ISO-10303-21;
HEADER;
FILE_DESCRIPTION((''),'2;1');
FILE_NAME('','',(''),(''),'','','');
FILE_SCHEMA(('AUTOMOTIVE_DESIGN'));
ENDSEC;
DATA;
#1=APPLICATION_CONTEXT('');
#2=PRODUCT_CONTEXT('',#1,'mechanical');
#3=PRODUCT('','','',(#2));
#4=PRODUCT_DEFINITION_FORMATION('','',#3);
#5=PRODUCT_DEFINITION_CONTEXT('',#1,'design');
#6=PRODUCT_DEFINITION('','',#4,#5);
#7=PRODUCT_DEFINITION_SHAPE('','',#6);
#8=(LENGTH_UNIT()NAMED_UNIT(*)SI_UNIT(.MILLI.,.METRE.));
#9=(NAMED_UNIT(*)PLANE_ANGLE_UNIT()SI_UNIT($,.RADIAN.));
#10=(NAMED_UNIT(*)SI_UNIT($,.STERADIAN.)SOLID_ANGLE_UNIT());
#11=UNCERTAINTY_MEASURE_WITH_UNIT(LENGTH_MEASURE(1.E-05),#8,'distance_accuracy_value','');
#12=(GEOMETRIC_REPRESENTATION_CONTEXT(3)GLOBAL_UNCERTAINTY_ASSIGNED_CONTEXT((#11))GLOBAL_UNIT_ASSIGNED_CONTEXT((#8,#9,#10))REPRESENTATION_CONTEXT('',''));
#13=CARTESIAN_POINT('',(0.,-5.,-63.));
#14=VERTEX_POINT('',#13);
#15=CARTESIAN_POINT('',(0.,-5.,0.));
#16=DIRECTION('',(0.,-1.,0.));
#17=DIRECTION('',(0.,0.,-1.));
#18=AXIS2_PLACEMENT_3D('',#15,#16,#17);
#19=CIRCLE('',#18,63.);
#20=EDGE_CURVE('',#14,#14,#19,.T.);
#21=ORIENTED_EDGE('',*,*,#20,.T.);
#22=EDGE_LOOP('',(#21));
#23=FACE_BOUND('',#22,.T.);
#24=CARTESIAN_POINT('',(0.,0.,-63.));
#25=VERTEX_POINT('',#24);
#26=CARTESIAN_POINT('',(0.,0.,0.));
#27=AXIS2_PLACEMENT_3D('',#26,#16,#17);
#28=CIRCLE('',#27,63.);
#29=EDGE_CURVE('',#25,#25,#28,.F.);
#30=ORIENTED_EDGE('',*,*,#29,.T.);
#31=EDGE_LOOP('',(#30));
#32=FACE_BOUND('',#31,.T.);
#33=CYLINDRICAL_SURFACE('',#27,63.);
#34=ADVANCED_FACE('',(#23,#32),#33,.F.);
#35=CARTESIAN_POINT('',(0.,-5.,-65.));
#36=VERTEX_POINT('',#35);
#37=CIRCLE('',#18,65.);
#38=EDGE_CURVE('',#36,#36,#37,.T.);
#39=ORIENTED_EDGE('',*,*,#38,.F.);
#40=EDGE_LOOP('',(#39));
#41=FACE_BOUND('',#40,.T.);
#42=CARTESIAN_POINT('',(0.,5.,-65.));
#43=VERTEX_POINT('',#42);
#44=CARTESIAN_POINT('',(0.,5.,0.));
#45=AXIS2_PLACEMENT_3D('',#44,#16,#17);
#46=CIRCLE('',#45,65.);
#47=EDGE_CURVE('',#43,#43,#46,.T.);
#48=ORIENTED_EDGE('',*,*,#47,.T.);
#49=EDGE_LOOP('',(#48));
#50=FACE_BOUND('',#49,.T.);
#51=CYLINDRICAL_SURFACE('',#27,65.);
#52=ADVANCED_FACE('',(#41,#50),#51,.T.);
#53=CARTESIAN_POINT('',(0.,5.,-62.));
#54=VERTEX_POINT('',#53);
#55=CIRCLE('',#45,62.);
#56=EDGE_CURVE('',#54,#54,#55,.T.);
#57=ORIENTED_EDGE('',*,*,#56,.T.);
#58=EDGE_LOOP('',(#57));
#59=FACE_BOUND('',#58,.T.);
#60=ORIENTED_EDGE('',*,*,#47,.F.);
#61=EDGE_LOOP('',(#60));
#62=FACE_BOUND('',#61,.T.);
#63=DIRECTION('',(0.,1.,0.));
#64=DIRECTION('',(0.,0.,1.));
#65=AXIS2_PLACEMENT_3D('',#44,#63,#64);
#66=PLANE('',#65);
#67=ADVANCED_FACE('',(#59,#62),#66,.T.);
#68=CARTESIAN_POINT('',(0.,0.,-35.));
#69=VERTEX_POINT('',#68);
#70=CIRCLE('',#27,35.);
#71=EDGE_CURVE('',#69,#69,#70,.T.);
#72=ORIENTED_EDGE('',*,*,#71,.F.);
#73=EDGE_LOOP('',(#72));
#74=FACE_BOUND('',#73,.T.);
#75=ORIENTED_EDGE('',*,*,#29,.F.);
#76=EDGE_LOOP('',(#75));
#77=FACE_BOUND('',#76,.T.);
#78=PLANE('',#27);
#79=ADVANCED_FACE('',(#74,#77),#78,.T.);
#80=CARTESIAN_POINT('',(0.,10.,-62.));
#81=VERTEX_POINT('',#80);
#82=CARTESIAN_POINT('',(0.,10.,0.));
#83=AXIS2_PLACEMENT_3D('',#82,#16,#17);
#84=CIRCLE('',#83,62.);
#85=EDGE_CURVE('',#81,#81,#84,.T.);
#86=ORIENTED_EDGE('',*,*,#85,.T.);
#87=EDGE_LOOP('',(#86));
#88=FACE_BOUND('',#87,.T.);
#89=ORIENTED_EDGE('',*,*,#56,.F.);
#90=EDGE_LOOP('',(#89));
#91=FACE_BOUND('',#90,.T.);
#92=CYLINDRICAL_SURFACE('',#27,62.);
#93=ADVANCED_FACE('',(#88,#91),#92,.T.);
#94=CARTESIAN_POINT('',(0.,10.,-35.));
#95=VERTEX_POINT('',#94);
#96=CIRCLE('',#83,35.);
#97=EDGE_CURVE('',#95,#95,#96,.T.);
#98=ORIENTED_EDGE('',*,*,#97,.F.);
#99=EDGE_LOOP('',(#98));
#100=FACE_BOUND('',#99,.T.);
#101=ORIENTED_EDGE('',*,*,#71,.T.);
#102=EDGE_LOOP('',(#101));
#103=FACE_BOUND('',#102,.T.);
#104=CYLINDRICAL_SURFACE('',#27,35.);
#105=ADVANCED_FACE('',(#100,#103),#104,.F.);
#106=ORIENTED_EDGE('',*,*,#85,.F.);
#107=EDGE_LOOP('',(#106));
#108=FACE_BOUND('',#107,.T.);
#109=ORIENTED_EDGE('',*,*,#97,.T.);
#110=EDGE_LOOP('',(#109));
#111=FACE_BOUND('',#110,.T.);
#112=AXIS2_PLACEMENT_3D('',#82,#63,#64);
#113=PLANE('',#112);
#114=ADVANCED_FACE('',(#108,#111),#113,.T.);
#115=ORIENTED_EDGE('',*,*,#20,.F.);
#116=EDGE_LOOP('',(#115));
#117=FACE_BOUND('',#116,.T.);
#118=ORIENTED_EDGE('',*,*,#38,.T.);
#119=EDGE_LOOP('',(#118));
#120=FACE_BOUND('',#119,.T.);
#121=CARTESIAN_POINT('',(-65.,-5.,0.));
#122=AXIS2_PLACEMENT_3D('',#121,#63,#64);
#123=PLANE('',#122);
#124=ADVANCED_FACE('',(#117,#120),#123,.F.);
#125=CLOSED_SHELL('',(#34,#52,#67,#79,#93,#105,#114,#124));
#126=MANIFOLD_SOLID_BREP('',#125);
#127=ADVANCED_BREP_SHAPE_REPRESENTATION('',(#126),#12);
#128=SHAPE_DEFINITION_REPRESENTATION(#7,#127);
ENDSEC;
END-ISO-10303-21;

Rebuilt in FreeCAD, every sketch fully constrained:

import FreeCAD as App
import Part
import Sketcher
from FreeCAD import Vector

doc = App.newDocument("Part")
body = doc.addObject("PartDesign::Body", "Body")

sketch1 = body.newObject("Sketcher::SketchObject", "Sketch")
sketch1.AttachmentSupport = (doc.getObject("XY_Plane"), [""])
sketch1.MapMode = "FlatFace"
sketch1.addGeometry([
    Part.LineSegment(Vector(-35, 0, 0), Vector(-35, 10, 0)),
    Part.LineSegment(Vector(-35, 10, 0), Vector(-62, 10, 0)),
    Part.LineSegment(Vector(-62, 10, 0), Vector(-62, 5, 0)),
    Part.LineSegment(Vector(-62, 5, 0), Vector(-65, 5, 0)),
    Part.LineSegment(Vector(-65, 5, 0), Vector(-65, -5, 0)),
    Part.LineSegment(Vector(-65, -5, 0), Vector(-63, -5, 0)),
    Part.LineSegment(Vector(-63, -5, 0), Vector(-63, 0, 0)),
    Part.LineSegment(Vector(-63, 0, 0), Vector(-35, 0, 0)),
], False)
sketch1.addConstraint([
    Sketcher.Constraint("Coincident", 0, 2, 1, 1),
    Sketcher.Constraint("Coincident", 1, 2, 2, 1),
    Sketcher.Constraint("Coincident", 2, 2, 3, 1),
    Sketcher.Constraint("Coincident", 3, 2, 4, 1),
    Sketcher.Constraint("Coincident", 4, 2, 5, 1),
    Sketcher.Constraint("Coincident", 5, 2, 6, 1),
    Sketcher.Constraint("Coincident", 6, 2, 7, 1),
    Sketcher.Constraint("Coincident", 7, 2, 0, 1),
    Sketcher.Constraint("Vertical", 0),
    Sketcher.Constraint("Horizontal", 1),
    Sketcher.Constraint("Vertical", 2),
    Sketcher.Constraint("Horizontal", 3),
    Sketcher.Constraint("Vertical", 4),
    Sketcher.Constraint("Horizontal", 5),
    Sketcher.Constraint("Vertical", 6),
    Sketcher.Constraint("Horizontal", 7),
    Sketcher.Constraint("PointOnObject", 6, 2, -1),
    Sketcher.Constraint("Equal", 0, 4),
    Sketcher.Constraint("DistanceX", 1, 2, 1, 1, 27.0),
    Sketcher.Constraint("DistanceX", 3, 2, 3, 1, 3.0),
    Sketcher.Constraint("DistanceX", 5, 1, 5, 2, 2.0),
    Sketcher.Constraint("DistanceY", 0, 1, 0, 2, 10.0),
    Sketcher.Constraint("DistanceY", 2, 2, 2, 1, 5.0),
    Sketcher.Constraint("DistanceX", 0, 2, -1, 1, 35.0),
])
revolution = body.newObject("PartDesign::Revolution", "Revolution")
revolution.Profile = sketch1
revolution.ReferenceAxis = (sketch1, ["V_Axis"])
revolution.Angle = 360

doc.recompute()
